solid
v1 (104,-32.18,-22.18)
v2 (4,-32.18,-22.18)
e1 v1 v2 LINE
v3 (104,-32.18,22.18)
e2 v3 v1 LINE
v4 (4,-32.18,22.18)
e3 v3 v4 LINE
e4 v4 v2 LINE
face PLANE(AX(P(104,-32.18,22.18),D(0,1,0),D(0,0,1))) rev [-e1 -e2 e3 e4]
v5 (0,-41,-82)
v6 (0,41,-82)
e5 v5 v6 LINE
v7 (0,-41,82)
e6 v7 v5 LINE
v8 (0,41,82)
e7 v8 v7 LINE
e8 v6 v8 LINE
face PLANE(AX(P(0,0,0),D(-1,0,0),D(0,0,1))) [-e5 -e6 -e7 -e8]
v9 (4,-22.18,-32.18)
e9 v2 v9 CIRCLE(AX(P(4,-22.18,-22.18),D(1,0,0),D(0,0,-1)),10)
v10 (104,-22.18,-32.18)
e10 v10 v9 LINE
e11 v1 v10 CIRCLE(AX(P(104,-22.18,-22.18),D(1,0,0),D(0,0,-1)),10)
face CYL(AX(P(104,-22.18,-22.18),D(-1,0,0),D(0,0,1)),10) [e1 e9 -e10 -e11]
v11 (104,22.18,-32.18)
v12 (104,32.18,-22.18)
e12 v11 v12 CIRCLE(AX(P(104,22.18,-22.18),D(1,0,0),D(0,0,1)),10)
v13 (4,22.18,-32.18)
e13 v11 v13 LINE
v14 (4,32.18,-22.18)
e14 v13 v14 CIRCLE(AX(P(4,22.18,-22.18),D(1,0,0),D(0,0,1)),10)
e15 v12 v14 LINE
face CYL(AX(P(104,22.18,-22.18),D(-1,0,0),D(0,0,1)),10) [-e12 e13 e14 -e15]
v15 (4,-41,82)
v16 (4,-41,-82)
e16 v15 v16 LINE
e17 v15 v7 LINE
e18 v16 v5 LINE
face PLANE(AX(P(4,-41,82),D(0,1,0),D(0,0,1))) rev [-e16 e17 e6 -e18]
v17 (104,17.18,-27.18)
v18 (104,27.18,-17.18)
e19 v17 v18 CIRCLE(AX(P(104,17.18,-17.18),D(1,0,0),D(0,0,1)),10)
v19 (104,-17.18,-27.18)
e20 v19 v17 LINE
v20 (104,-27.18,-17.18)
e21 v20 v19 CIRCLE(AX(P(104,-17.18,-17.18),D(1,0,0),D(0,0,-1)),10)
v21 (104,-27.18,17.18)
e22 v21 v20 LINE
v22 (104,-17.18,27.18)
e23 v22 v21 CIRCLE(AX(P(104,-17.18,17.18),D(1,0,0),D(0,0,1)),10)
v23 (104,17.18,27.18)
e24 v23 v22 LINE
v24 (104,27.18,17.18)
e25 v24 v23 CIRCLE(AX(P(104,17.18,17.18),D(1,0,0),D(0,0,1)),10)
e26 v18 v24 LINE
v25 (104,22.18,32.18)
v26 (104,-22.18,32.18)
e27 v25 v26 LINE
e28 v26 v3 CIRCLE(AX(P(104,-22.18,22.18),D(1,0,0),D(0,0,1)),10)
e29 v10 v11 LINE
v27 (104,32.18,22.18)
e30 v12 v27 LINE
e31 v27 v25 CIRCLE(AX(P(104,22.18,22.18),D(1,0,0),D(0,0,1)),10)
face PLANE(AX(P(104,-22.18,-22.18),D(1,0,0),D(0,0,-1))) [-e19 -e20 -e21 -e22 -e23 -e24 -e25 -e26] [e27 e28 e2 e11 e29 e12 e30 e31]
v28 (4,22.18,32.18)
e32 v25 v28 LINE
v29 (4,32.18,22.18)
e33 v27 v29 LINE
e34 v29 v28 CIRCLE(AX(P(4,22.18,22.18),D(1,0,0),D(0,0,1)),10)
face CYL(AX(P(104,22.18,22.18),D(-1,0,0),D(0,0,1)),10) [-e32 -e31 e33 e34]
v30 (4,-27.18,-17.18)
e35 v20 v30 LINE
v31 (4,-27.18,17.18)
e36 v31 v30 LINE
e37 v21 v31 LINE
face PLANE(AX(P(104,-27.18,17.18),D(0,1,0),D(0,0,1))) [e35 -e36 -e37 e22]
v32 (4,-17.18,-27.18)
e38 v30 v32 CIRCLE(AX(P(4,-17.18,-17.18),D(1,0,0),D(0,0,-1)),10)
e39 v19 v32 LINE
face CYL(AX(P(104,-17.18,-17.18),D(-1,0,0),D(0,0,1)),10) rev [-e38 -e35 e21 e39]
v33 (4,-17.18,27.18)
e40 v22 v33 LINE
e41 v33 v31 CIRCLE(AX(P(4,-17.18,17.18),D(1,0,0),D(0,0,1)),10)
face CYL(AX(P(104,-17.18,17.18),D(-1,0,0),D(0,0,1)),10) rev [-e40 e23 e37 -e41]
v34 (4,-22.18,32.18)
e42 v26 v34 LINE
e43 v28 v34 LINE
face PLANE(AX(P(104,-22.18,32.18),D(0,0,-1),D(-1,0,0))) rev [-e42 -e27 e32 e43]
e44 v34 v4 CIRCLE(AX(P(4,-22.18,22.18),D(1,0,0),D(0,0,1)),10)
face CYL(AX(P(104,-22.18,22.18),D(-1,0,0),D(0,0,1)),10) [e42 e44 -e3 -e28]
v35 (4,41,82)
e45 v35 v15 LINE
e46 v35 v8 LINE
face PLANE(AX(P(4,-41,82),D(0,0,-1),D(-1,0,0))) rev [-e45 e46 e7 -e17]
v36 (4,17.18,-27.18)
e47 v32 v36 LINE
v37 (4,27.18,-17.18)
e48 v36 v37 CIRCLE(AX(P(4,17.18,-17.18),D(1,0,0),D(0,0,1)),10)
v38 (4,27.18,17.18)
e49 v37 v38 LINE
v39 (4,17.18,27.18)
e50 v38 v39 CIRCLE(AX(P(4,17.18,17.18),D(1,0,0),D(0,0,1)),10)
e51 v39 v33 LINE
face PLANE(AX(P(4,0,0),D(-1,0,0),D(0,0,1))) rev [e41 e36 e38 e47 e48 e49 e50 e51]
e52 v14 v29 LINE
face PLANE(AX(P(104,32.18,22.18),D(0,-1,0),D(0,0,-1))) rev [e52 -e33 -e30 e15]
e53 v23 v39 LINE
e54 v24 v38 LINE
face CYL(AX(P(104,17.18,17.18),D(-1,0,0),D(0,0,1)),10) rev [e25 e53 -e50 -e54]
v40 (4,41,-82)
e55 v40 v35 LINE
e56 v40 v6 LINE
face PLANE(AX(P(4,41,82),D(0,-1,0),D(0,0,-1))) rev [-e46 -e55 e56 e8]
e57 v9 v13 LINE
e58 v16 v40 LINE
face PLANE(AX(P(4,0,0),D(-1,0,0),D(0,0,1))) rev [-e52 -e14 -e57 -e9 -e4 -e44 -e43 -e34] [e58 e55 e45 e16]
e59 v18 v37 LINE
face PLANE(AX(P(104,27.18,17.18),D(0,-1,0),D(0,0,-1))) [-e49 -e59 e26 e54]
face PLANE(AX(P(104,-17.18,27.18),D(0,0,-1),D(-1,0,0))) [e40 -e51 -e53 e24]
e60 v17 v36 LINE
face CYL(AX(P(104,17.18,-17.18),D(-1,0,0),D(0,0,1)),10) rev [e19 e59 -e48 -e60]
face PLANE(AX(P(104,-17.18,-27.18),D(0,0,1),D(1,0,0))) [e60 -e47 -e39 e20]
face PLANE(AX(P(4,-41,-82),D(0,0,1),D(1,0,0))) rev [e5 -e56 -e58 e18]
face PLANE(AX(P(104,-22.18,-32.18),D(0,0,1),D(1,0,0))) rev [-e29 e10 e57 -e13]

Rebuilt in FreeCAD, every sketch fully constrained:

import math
import FreeCAD as App
import Part
import Sketcher
Q = App.Units.Quantity

doc = App.newDocument("Part")
body = doc.addObject("PartDesign::Body", "Body")

# Sketch on YZ plane
sketch1 = doc.addObject("Sketcher::SketchObject", "Sketch")
body.addObject(sketch1)
sketch1.AttachmentSupport = (doc.YZ_Plane, [""])
sketch1.MapMode = "FlatFace"
sketch1.addGeometry(Part.LineSegment(App.Vector(41, 82, 0), App.Vector(-41, 82, 0)), False)
sketch1.addGeometry(Part.LineSegment(App.Vector(-41, 82, 0), App.Vector(-41, -82, 0)), False)
sketch1.addGeometry(Part.LineSegment(App.Vector(-41, -82, 0), App.Vector(41, -82, 0)), False)
sketch1.addGeometry(Part.LineSegment(App.Vector(41, -82, 0), App.Vector(41, 82, 0)), False)
sketch1.addConstraint(Sketcher.Constraint("Coincident", 0, 2, 1, 1))
sketch1.addConstraint(Sketcher.Constraint("Coincident", 1, 2, 2, 1))
sketch1.addConstraint(Sketcher.Constraint("Coincident", 2, 2, 3, 1))
sketch1.addConstraint(Sketcher.Constraint("Coincident", 3, 2, 0, 1))
sketch1.addConstraint(Sketcher.Constraint("Horizontal", 0))
sketch1.addConstraint(Sketcher.Constraint("Vertical", 1))
sketch1.addConstraint(Sketcher.Constraint("Horizontal", 2))
sketch1.addConstraint(Sketcher.Constraint("Vertical", 3))
sketch1.addConstraint(Sketcher.Constraint("Symmetric", 0, 2, 2, 2, -1, 1))
sketch1.addConstraint(Sketcher.Constraint("DistanceX", 0, 2, 0, 1, Q("82 mm")))
sketch1.addConstraint(Sketcher.Constraint("DistanceY", 1, 2, 1, 1, Q("164 mm")))
pad1 = doc.addObject("PartDesign::Pad", "Pad")
body.addObject(pad1)
pad1.Profile = sketch1
pad1.Length = 4

# Sketch on YZ plane
sketch2 = doc.addObject("Sketcher::SketchObject", "Sketch001")
body.addObject(sketch2)
sketch2.AttachmentSupport = (doc.YZ_Plane, [""])
sketch2.MapMode = "FlatFace"
sketch2.AttachmentOffset = App.Placement(App.Vector(0, 0, 4), App.Rotation())
sketch2.addGeometry(Part.LineSegment(App.Vector(-32, 22, 0), App.Vector(-32, -22, 0)), False)
sketch2.addGeometry(Part.ArcOfCircle(Part.Circle(App.Vector(-22, -22, 0), App.Vector(0, 0, 1), 10), math.radians(180), math.radians(270)), False)
sketch2.addGeometry(Part.LineSegment(App.Vector(-22, -32, 0), App.Vector(22, -32, 0)), False)
sketch2.addGeometry(Part.ArcOfCircle(Part.Circle(App.Vector(22, -22, 0), App.Vector(0, 0, 1), 10), math.radians(-90), math.radians(0)), False)
sketch2.addGeometry(Part.LineSegment(App.Vector(32, -22, 0), App.Vector(32, 22, 0)), False)
sketch2.addGeometry(Part.ArcOfCircle(Part.Circle(App.Vector(22, 22, 0), App.Vector(0, 0, 1), 10), math.radians(0), math.radians(90)), False)
sketch2.addGeometry(Part.LineSegment(App.Vector(22, 32, 0), App.Vector(-22, 32, 0)), False)
sketch2.addGeometry(Part.ArcOfCircle(Part.Circle(App.Vector(-22, 22, 0), App.Vector(0, 0, 1), 10), math.radians(90), math.radians(180)), False)
sketch2.addGeometry(Part.LineSegment(App.Vector(-27, -17, 0), App.Vector(-27, 17, 0)), False)
sketch2.addGeometry(Part.ArcOfCircle(Part.Circle(App.Vector(-17, 17, 0), App.Vector(0, 0, 1), 10), math.radians(90), math.radians(180)), False)
sketch2.addGeometry(Part.LineSegment(App.Vector(-17, 27, 0), App.Vector(17, 27, 0)), False)
sketch2.addGeometry(Part.ArcOfCircle(Part.Circle(App.Vector(17, 17, 0), App.Vector(0, 0, 1), 10), math.radians(0), math.radians(90)), False)
sketch2.addGeometry(Part.LineSegment(App.Vector(27, 17, 0), App.Vector(27, -17, 0)), False)
sketch2.addGeometry(Part.ArcOfCircle(Part.Circle(App.Vector(17, -17, 0), App.Vector(0, 0, 1), 10), math.radians(-90), math.radians(0)), False)
sketch2.addGeometry(Part.LineSegment(App.Vector(17, -27, 0), App.Vector(-17, -27, 0)), False)
sketch2.addGeometry(Part.ArcOfCircle(Part.Circle(App.Vector(-17, -17, 0), App.Vector(0, 0, 1), 10), math.radians(180), math.radians(270)), False)
sketch2.addConstraint(Sketcher.Constraint("Tangent", 0, 2, 1, 1))
sketch2.addConstraint(Sketcher.Constraint("Tangent", 1, 2, 2, 1))
sketch2.addConstraint(Sketcher.Constraint("Tangent", 2, 2, 3, 1))
sketch2.addConstraint(Sketcher.Constraint("Tangent", 3, 2, 4, 1))
sketch2.addConstraint(Sketcher.Constraint("Tangent", 4, 2, 5, 1))
sketch2.addConstraint(Sketcher.Constraint("Tangent", 5, 2, 6, 1))
sketch2.addConstraint(Sketcher.Constraint("Tangent", 6, 2, 7, 1))
sketch2.addConstraint(Sketcher.Constraint("Tangent", 7, 2, 0, 1))
sketch2.addConstraint(Sketcher.Constraint("Tangent", 8, 2, 9, 2))
sketch2.addConstraint(Sketcher.Constraint("Tangent", 9, 1, 10, 1))
sketch2.addConstraint(Sketcher.Constraint("Tangent", 10, 2, 11, 2))
sketch2.addConstraint(Sketcher.Constraint("Tangent", 11, 1, 12, 1))
sketch2.addConstraint(Sketcher.Constraint("Tangent", 12, 2, 13, 2))
sketch2.addConstraint(Sketcher.Constraint("Tangent", 13, 1, 14, 1))
sketch2.addConstraint(Sketcher.Constraint("Tangent", 14, 2, 15, 2))
sketch2.addConstraint(Sketcher.Constraint("Tangent", 15, 1, 8, 1))
sketch2.addConstraint(Sketcher.Constraint("Vertical", 0))
sketch2.addConstraint(Sketcher.Constraint("Horizontal", 2))
sketch2.addConstraint(Sketcher.Constraint("Vertical", 4))
sketch2.addConstraint(Sketcher.Constraint("Horizontal", 6))
sketch2.addConstraint(Sketcher.Constraint("Vertical", 8))
sketch2.addConstraint(Sketcher.Constraint("Horizontal", 10))
sketch2.addConstraint(Sketcher.Constraint("Vertical", 12))
sketch2.addConstraint(Sketcher.Constraint("Horizontal", 14))
sketch2.addConstraint(Sketcher.Constraint("Equal", 1, 3))
sketch2.addConstraint(Sketcher.Constraint("Equal", 3, 5))
sketch2.addConstraint(Sketcher.Constraint("Equal", 5, 7))
sketch2.addConstraint(Sketcher.Constraint("Equal", 7, 9))
sketch2.addConstraint(Sketcher.Constraint("Equal", 9, 11))
sketch2.addConstraint(Sketcher.Constraint("Equal", 11, 13))
sketch2.addConstraint(Sketcher.Constraint("Equal", 13, 15))
sketch2.addConstraint(Sketcher.Constraint("Symmetric", 1, 3, 5, 3, -1, 1))
sketch2.addConstraint(Sketcher.Constraint("Symmetric", 9, 3, 13, 3, -1, 1))
sketch2.addConstraint(Sketcher.Constraint("Equal", 6, 0))
sketch2.addConstraint(Sketcher.Constraint("Equal", 14, 8))
sketch2.addConstraint(Sketcher.Constraint("Radius", 1, Q("10 mm")))
sketch2.addConstraint(Sketcher.Constraint("DistanceX", 7, 3, 9, 3, Q("5 mm")))
sketch2.addConstraint(Sketcher.Constraint("DistanceX", 2, 1, 2, 2, Q("44.36 mm")))
pad2 = doc.addObject("PartDesign::Pad", "Pad001")
body.addObject(pad2)
pad2.Profile = sketch2
pad2.Length = 100

doc.recompute()
